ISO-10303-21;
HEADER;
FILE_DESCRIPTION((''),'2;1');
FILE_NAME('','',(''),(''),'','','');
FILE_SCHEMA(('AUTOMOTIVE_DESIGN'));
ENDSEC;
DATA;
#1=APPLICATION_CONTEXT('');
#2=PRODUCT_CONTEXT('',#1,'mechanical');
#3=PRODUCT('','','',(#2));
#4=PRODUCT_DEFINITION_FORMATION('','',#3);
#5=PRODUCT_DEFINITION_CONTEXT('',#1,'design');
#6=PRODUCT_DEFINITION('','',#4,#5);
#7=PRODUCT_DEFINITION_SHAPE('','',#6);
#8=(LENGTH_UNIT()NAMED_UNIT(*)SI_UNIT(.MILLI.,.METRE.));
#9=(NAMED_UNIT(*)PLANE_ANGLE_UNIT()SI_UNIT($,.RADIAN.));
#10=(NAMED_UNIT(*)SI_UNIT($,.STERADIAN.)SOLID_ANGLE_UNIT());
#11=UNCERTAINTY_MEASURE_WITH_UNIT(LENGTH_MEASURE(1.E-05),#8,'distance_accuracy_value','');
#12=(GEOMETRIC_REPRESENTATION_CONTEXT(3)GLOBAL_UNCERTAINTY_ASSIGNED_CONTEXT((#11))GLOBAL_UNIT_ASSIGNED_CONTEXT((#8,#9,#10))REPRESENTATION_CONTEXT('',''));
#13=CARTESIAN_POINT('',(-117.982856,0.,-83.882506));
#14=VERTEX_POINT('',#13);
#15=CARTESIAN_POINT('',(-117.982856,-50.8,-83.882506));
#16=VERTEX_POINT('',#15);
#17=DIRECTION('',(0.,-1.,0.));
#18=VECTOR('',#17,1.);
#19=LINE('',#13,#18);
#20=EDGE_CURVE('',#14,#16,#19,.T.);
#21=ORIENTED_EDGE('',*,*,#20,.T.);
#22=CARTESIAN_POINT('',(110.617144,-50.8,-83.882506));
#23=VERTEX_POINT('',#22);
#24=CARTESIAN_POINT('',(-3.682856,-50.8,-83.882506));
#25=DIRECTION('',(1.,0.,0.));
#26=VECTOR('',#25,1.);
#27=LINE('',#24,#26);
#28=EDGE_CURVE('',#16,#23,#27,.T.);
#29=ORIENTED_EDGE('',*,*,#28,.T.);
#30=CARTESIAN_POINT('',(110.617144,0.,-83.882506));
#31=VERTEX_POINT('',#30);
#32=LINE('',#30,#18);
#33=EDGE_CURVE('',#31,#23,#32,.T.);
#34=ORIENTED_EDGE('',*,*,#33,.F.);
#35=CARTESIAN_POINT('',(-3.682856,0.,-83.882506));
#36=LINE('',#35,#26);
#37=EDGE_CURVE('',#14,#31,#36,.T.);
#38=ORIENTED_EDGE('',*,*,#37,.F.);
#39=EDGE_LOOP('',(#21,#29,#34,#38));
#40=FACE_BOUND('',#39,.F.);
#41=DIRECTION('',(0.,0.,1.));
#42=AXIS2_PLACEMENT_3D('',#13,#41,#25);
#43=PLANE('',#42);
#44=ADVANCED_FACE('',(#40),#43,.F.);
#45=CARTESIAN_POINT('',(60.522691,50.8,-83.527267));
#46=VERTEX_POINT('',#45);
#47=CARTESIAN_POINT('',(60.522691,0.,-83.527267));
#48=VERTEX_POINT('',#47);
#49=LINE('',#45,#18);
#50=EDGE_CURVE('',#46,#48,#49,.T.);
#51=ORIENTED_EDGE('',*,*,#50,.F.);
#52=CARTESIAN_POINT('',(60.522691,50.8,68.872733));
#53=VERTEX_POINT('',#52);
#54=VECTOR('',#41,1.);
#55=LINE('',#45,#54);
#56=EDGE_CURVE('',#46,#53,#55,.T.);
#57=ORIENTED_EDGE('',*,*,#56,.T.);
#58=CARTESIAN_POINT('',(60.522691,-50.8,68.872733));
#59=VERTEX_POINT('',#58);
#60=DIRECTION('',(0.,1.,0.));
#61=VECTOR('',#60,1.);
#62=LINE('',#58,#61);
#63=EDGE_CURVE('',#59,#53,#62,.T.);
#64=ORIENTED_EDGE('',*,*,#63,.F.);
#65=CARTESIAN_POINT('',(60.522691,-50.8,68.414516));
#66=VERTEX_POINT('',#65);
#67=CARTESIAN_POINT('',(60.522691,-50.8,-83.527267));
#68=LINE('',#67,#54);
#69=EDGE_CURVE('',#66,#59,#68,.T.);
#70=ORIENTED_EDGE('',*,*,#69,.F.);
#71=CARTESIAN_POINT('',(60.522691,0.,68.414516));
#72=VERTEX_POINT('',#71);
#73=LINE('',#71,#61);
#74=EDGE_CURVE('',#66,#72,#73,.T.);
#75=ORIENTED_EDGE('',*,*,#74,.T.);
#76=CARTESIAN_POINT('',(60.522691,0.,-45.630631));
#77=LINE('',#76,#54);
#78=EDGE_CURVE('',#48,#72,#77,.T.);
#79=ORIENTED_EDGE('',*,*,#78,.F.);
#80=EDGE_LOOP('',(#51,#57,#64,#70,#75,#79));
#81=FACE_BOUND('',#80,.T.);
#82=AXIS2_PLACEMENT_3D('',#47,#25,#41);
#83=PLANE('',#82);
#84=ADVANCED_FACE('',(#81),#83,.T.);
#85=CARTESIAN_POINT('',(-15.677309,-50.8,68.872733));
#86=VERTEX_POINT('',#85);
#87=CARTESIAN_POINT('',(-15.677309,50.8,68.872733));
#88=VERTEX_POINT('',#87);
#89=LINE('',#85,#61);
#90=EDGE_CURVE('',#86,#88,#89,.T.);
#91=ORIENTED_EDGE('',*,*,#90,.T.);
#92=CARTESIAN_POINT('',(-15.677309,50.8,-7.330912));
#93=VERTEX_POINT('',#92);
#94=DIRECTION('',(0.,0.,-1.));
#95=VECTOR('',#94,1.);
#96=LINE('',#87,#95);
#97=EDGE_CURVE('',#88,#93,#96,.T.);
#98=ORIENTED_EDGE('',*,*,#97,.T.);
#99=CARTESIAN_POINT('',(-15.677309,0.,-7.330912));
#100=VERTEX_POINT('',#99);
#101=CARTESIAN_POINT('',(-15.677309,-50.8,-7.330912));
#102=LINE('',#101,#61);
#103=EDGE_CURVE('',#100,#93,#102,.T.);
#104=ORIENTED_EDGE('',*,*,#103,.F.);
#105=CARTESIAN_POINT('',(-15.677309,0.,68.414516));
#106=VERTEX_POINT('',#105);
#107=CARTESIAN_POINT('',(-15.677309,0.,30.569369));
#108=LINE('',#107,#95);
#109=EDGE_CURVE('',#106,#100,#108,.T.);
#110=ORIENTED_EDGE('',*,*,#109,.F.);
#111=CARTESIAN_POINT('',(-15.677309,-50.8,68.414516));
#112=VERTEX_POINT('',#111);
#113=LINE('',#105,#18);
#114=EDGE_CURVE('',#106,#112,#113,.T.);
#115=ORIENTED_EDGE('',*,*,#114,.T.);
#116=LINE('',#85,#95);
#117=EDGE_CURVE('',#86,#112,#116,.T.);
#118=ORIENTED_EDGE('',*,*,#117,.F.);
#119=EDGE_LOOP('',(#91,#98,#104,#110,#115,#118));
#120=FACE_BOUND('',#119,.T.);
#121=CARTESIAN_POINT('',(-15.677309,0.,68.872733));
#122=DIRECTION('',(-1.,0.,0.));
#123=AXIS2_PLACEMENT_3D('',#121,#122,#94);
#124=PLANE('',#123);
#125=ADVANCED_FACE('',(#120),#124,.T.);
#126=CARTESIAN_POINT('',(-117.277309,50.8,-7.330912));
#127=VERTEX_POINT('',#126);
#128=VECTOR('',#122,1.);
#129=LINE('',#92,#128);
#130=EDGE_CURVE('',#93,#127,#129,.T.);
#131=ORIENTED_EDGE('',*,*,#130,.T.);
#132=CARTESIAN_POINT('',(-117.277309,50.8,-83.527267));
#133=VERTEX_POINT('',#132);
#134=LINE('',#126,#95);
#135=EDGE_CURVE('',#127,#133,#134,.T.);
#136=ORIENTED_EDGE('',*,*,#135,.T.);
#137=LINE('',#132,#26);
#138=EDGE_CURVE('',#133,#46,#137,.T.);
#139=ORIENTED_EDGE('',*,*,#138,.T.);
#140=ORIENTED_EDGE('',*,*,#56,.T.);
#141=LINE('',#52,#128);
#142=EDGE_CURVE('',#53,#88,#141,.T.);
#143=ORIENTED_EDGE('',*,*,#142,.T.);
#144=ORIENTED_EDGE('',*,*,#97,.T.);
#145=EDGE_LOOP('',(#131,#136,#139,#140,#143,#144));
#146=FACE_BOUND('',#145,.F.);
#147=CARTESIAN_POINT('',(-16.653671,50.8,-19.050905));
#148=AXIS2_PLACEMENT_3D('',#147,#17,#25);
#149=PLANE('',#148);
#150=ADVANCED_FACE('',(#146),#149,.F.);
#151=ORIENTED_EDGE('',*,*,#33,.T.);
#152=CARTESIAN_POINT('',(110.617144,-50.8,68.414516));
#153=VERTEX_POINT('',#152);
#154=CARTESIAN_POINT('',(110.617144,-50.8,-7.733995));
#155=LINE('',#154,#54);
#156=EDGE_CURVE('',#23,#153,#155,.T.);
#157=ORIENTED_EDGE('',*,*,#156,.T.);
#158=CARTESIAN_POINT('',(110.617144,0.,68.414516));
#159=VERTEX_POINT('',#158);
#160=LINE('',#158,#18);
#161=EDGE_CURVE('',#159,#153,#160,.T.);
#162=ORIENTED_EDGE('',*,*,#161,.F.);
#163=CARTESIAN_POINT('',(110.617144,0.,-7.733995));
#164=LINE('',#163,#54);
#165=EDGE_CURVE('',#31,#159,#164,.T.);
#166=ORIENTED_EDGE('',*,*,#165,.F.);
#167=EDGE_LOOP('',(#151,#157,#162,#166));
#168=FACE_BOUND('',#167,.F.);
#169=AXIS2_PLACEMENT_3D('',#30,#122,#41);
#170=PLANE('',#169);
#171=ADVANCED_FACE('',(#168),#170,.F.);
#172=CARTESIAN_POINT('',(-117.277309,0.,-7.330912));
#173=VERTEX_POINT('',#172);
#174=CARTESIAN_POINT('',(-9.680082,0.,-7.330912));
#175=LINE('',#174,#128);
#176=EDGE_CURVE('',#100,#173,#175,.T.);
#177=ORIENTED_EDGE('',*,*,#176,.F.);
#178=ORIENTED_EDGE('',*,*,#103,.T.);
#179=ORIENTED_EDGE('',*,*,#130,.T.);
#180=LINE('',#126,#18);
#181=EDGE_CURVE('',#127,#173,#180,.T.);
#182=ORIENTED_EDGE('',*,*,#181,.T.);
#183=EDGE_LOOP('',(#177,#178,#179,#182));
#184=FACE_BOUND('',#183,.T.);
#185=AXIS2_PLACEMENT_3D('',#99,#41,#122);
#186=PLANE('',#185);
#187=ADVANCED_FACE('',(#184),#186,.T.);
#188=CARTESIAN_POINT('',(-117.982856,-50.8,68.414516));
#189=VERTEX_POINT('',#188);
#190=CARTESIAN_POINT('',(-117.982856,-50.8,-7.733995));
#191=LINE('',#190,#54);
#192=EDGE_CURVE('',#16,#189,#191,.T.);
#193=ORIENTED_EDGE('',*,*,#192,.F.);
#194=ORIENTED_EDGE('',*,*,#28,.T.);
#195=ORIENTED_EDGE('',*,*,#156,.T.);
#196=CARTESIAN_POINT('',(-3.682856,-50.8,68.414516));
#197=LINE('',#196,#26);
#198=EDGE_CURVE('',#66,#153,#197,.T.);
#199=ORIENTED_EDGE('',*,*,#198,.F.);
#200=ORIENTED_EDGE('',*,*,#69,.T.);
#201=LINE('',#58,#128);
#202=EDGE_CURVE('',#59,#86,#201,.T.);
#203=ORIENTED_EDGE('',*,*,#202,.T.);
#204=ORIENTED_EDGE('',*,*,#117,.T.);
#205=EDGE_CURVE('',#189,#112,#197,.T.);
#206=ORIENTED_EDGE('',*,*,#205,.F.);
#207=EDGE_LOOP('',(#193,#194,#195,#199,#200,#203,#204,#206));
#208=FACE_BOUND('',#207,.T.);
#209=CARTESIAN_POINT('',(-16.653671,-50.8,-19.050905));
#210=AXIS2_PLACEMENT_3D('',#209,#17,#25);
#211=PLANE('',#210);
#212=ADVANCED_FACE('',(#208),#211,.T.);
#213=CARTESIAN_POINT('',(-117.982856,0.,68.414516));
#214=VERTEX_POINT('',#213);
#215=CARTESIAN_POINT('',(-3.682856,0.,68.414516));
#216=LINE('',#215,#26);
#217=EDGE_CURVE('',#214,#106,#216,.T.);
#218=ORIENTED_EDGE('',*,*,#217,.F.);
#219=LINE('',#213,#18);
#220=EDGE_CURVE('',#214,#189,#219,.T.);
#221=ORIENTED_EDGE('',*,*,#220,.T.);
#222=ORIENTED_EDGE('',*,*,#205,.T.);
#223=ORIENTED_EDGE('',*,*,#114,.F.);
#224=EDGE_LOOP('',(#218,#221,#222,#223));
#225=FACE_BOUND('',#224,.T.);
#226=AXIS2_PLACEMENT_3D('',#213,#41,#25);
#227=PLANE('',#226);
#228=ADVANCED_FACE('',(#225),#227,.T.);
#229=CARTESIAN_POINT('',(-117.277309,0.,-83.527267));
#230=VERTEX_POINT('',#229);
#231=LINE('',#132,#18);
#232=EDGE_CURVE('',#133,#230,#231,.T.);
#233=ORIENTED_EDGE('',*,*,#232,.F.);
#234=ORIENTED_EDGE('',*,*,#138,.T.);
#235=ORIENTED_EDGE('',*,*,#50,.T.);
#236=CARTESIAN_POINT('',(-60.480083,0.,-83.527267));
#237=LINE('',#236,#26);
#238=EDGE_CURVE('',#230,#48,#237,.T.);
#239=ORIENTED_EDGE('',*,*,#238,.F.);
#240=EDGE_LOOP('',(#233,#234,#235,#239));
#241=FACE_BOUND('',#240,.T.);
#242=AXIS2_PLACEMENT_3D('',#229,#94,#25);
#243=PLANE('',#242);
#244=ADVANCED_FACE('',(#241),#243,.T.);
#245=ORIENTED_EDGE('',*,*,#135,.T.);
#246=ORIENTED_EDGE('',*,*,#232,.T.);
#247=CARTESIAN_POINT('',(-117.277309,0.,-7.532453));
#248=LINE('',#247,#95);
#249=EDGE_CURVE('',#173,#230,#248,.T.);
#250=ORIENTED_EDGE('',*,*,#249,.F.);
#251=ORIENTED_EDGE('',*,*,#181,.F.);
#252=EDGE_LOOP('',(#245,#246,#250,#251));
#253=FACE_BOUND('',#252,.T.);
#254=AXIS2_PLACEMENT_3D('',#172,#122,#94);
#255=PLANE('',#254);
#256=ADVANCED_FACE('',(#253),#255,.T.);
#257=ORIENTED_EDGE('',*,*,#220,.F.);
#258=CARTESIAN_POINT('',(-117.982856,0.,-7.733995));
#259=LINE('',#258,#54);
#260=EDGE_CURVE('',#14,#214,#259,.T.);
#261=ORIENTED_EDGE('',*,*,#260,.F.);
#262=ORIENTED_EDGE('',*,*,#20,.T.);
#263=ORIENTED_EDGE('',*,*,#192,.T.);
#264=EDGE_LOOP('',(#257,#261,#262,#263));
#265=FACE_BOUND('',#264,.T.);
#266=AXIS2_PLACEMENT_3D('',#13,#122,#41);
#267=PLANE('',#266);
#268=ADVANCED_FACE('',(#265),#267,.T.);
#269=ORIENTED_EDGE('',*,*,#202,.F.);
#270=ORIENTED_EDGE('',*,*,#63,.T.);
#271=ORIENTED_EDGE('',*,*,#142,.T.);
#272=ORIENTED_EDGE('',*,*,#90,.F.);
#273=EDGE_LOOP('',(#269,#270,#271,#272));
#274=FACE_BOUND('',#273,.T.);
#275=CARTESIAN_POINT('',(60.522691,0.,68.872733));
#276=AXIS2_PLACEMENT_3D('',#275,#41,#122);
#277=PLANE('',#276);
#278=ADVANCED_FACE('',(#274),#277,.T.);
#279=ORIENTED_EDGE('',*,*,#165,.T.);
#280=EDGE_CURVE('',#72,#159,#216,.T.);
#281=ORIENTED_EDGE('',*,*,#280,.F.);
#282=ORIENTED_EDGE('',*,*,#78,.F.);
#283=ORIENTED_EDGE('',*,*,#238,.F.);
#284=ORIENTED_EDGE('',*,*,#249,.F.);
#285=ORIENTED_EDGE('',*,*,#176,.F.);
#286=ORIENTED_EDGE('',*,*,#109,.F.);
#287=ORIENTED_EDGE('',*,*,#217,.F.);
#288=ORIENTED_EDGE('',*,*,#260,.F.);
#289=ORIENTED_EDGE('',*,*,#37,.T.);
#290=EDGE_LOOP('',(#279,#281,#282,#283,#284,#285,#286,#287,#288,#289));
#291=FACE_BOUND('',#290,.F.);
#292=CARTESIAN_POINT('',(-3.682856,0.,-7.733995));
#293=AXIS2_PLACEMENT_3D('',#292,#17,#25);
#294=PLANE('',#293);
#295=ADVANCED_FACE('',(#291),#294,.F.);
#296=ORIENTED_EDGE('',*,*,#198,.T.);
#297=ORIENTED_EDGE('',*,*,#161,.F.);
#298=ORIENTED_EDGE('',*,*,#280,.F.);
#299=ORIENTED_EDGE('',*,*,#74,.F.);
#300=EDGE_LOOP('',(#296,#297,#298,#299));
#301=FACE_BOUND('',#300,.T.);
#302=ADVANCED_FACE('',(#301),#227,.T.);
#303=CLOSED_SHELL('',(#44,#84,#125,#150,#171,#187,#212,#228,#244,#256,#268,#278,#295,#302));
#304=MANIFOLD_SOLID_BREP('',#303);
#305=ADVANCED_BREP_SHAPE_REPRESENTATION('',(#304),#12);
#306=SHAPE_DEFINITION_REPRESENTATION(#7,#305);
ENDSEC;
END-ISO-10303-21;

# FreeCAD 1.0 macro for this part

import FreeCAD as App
import Part
import Sketcher
from FreeCAD import Vector
Q = App.Units.Quantity

doc = App.newDocument("Part")
params = doc.addObject("Spreadsheet::Sheet", "Params")
for row, (alias, value) in enumerate([
    ("sketch1_width", "9 in"),
    ("pad1_length", "2 in"),
    ("sketch2_width", "4 in"),
    ("sketch2_width2", "7 in"),
    ("sketch2_height", "6 in"),
    ("pad2_length", "4 in"),
], start=1):
    params.set(f"A{row}", alias)
    params.set(f"B{row}", "=" + value)
    params.setAlias(f"B{row}", alias)

body = doc.addObject("PartDesign::Body", "Body")

sketch1 = body.newObject("Sketcher::SketchObject", "Sketch")
sketch1.AttachmentSupport = (doc.getObject("XZ_Plane"), [""])
sketch1.MapMode = "FlatFace"
sketch1.addGeometry([
    Part.LineSegment(Vector(-118, 68, 0), Vector(-118, -84, 0)),
    Part.LineSegment(Vector(-118, -84, 0), Vector(111, -84, 0)),
    Part.LineSegment(Vector(111, -84, 0), Vector(111, 68, 0)),
    Part.LineSegment(Vector(111, 68, 0), Vector(-118, 68, 0)),
], False)
sketch1.addConstraint([
    Sketcher.Constraint("Coincident", 0, 2, 1, 1),
    Sketcher.Constraint("Coincident", 1, 2, 2, 1),
    Sketcher.Constraint("Coincident", 2, 2, 3, 1),
    Sketcher.Constraint("Coincident", 3, 2, 0, 1),
    Sketcher.Constraint("Vertical", 0),
    Sketcher.Constraint("Horizontal", 1),
    Sketcher.Constraint("Vertical", 2),
    Sketcher.Constraint("Horizontal", 3),
    Sketcher.Constraint("DistanceX", 1, 1, 1, 2, Q("9 in")),
    Sketcher.Constraint("DistanceY", 0, 2, 0, 1, Q("152.297022 mm")),
    Sketcher.Constraint("DistanceX", 0, 2, -1, 1, Q("117.982856 mm")),
    Sketcher.Constraint("DistanceY", 0, 2, -1, 1, Q("83.882506 mm")),
])
sketch1.setExpression("Constraints[8]", "Params.sketch1_width")
pad1 = body.newObject("PartDesign::Pad", "Pad")
pad1.Profile = sketch1
pad1.setExpression("Length", "Params.pad1_length")

sketch2 = body.newObject("Sketcher::SketchObject", "Sketch001")
sketch2.AttachmentSupport = (doc.getObject("XZ_Plane"), [""])
sketch2.MapMode = "FlatFace"
sketch2.addGeometry([
    Part.LineSegment(Vector(-16, -7, 0), Vector(-117, -7, 0)),
    Part.LineSegment(Vector(-117, -7, 0), Vector(-117, -84, 0)),
    Part.LineSegment(Vector(-117, -84, 0), Vector(61, -84, 0)),
    Part.LineSegment(Vector(61, -84, 0), Vector(61, 69, 0)),
    Part.LineSegment(Vector(61, 69, 0), Vector(-16, 69, 0)),
    Part.LineSegment(Vector(-16, 69, 0), Vector(-16, -7, 0)),
], False)
sketch2.addConstraint([
    Sketcher.Constraint("Coincident", 0, 2, 1, 1),
    Sketcher.Constraint("Coincident", 1, 2, 2, 1),
    Sketcher.Constraint("Coincident", 2, 2, 3, 1),
    Sketcher.Constraint("Coincident", 3, 2, 4, 1),
    Sketcher.Constraint("Coincident", 4, 2, 5, 1),
    Sketcher.Constraint("Coincident", 5, 2, 0, 1),
    Sketcher.Constraint("Horizontal", 0),
    Sketcher.Constraint("Vertical", 1),
    Sketcher.Constraint("Horizontal", 2),
    Sketcher.Constraint("Vertical", 3),
    Sketcher.Constraint("Horizontal", 4),
    Sketcher.Constraint("Vertical", 5),
    Sketcher.Constraint("DistanceX", 0, 2, 0, 1, Q("4 in")),
    Sketcher.Constraint("DistanceX", 2, 1, 2, 2, Q("7 in")),
    Sketcher.Constraint("DistanceY", 3, 1, 3, 2, Q("6 in")),
    Sketcher.Constraint("DistanceY", 1, 2, 1, 1, Q("76.196355 mm")),
    Sketcher.Constraint("DistanceX", 0, 2, -1, 1, Q("117.277309 mm")),
    Sketcher.Constraint("DistanceY", 0, 2, -1, 1, Q("7.330912 mm")),
])
sketch2.setExpression("Constraints[12]", "Params.sketch2_width")
sketch2.setExpression("Constraints[13]", "Params.sketch2_width2")
sketch2.setExpression("Constraints[14]", "Params.sketch2_height")
pad2 = body.newObject("PartDesign::Pad", "Pad001")
pad2.Profile = sketch2
pad2.setExpression("Length", "Params.pad2_length")
pad2.Midplane = True

doc.recompute()
